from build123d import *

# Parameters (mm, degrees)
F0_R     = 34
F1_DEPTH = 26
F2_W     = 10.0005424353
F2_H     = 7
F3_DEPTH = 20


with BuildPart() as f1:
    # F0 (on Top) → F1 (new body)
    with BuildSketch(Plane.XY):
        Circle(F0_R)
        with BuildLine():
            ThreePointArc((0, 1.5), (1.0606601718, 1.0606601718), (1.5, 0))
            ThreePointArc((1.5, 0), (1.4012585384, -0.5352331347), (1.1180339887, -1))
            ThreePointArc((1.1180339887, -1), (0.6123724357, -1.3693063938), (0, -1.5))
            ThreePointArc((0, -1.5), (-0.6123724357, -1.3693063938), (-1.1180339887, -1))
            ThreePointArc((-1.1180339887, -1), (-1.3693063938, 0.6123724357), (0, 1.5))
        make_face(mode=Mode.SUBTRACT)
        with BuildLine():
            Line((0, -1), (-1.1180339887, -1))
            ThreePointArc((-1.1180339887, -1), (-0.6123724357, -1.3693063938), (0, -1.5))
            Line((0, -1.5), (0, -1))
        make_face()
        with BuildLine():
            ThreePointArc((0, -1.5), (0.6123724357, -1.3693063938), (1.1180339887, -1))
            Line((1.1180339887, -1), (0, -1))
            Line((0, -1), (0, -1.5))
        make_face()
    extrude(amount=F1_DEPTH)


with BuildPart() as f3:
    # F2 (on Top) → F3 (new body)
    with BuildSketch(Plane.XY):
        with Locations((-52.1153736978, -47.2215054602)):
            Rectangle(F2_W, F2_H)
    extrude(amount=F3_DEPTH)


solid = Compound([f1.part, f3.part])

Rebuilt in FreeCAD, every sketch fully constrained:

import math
import FreeCAD as App
import Part
import Sketcher
from FreeCAD import Vector
Q = App.Units.Quantity


def add_polygon(sketch, points):
    """Adds a closed chain of lines whose ends are joined by coincident constraints."""
    first, n = sketch.GeometryCount, len(points)
    for a, b in zip(points, points[1:] + points[:1]):
        sketch.addGeometry(Part.LineSegment(App.Vector(*a, 0), App.Vector(*b, 0)), False)
    for i in range(n):
        sketch.addConstraint(Sketcher.Constraint("Coincident", first + i, 2, first + (i + 1) % n, 1))

doc = App.newDocument("Part")
body = doc.addObject("PartDesign::Body", "Body")

sketch1 = doc.addObject("Sketcher::SketchObject", "Sketch")
body.addObject(sketch1)
sketch1.AttachmentSupport = (doc.XY_Plane, [""])
sketch1.MapMode = "FlatFace"
sketch1.addGeometry(Part.Circle(Vector(0, 0, 0), Vector(0, 0, 1), 34), False)
sketch1.addGeometry(Part.ArcOfCircle(Part.Circle(Vector(0, 0, 0), Vector(0, 0, 1), 1.5), math.radians(90), math.radians(222)), False)
sketch1.addGeometry(Part.ArcOfCircle(Part.Circle(Vector(0, 0, 0), Vector(0, 0, 1), 1.5), math.radians(0), math.radians(90)), False)
sketch1.addGeometry(Part.ArcOfCircle(Part.Circle(Vector(0, 0, 0), Vector(0, 0, 1), 1.5), math.radians(-42), math.radians(0)), False)
sketch1.addGeometry(Part.LineSegment(Vector(1.1, -1, 0), Vector(-1.1, -1, 0)), False)
sketch1.addConstraint(Sketcher.Constraint("Tangent", 1, 1, 2, 2))
sketch1.addConstraint(Sketcher.Constraint("Tangent", 2, 1, 3, 2))
sketch1.addConstraint(Sketcher.Constraint("Coincident", 3, 1, 4, 1))
sketch1.addConstraint(Sketcher.Constraint("Coincident", 4, 2, 1, 2))
sketch1.addConstraint(Sketcher.Constraint("Horizontal", 4))
sketch1.addConstraint(Sketcher.Constraint("Coincident", 0, 3, -1, 1))
sketch1.addConstraint(Sketcher.Constraint("Coincident", 1, 3, -1, 1))
sketch1.addConstraint(Sketcher.Constraint("Coincident", 3, 3, -1, 1))
sketch1.addConstraint(Sketcher.Constraint("PointOnObject", 1, 1, -2))
sketch1.addConstraint(Sketcher.Constraint("PointOnObject", 2, 1, -1))
sketch1.addConstraint(Sketcher.Constraint("Diameter", 0, Q("68 mm")))
sketch1.addConstraint(Sketcher.Constraint("Radius", 1, Q("1.5 mm")))
sketch1.addConstraint(Sketcher.Constraint("DistanceY", 3, 1, -1, 1, Q("1 mm")))
pad1 = doc.addObject("PartDesign::Pad", "Pad")
body.addObject(pad1)
pad1.Profile = sketch1
pad1.Length = 26
body2 = doc.addObject("PartDesign::Body", "Body001")

sketch2 = doc.addObject("Sketcher::SketchObject", "Sketch001")
body2.addObject(sketch2)
sketch2.AttachmentSupport = (doc.getObject("XY_Plane001"), [""])
sketch2.MapMode = "FlatFace"
add_polygon(sketch2, [(-57, -44), (-57, -51), (-47, -51), (-47, -44)])
sketch2.addConstraint(Sketcher.Constraint("Vertical", 0))
sketch2.addConstraint(Sketcher.Constraint("Horizontal", 1))
sketch2.addConstraint(Sketcher.Constraint("Vertical", 2))
sketch2.addConstraint(Sketcher.Constraint("Horizontal", 3))
sketch2.addConstraint(Sketcher.Constraint("DistanceY", 0, 2, 0, 1, Q("7 mm")))
sketch2.addConstraint(Sketcher.Constraint("DistanceX", 1, 1, 1, 2, Q("10.000542 mm")))
sketch2.addConstraint(Sketcher.Constraint("DistanceX", 0, 2, -1, 1, Q("57.115645 mm")))
sketch2.addConstraint(Sketcher.Constraint("DistanceY", 0, 2, -1, 1, Q("50.721505 mm")))
pad2 = doc.addObject("PartDesign::Pad", "Pad001")
body2.addObject(pad2)
pad2.Profile = sketch2
pad2.Length = 20

doc.recompute()
